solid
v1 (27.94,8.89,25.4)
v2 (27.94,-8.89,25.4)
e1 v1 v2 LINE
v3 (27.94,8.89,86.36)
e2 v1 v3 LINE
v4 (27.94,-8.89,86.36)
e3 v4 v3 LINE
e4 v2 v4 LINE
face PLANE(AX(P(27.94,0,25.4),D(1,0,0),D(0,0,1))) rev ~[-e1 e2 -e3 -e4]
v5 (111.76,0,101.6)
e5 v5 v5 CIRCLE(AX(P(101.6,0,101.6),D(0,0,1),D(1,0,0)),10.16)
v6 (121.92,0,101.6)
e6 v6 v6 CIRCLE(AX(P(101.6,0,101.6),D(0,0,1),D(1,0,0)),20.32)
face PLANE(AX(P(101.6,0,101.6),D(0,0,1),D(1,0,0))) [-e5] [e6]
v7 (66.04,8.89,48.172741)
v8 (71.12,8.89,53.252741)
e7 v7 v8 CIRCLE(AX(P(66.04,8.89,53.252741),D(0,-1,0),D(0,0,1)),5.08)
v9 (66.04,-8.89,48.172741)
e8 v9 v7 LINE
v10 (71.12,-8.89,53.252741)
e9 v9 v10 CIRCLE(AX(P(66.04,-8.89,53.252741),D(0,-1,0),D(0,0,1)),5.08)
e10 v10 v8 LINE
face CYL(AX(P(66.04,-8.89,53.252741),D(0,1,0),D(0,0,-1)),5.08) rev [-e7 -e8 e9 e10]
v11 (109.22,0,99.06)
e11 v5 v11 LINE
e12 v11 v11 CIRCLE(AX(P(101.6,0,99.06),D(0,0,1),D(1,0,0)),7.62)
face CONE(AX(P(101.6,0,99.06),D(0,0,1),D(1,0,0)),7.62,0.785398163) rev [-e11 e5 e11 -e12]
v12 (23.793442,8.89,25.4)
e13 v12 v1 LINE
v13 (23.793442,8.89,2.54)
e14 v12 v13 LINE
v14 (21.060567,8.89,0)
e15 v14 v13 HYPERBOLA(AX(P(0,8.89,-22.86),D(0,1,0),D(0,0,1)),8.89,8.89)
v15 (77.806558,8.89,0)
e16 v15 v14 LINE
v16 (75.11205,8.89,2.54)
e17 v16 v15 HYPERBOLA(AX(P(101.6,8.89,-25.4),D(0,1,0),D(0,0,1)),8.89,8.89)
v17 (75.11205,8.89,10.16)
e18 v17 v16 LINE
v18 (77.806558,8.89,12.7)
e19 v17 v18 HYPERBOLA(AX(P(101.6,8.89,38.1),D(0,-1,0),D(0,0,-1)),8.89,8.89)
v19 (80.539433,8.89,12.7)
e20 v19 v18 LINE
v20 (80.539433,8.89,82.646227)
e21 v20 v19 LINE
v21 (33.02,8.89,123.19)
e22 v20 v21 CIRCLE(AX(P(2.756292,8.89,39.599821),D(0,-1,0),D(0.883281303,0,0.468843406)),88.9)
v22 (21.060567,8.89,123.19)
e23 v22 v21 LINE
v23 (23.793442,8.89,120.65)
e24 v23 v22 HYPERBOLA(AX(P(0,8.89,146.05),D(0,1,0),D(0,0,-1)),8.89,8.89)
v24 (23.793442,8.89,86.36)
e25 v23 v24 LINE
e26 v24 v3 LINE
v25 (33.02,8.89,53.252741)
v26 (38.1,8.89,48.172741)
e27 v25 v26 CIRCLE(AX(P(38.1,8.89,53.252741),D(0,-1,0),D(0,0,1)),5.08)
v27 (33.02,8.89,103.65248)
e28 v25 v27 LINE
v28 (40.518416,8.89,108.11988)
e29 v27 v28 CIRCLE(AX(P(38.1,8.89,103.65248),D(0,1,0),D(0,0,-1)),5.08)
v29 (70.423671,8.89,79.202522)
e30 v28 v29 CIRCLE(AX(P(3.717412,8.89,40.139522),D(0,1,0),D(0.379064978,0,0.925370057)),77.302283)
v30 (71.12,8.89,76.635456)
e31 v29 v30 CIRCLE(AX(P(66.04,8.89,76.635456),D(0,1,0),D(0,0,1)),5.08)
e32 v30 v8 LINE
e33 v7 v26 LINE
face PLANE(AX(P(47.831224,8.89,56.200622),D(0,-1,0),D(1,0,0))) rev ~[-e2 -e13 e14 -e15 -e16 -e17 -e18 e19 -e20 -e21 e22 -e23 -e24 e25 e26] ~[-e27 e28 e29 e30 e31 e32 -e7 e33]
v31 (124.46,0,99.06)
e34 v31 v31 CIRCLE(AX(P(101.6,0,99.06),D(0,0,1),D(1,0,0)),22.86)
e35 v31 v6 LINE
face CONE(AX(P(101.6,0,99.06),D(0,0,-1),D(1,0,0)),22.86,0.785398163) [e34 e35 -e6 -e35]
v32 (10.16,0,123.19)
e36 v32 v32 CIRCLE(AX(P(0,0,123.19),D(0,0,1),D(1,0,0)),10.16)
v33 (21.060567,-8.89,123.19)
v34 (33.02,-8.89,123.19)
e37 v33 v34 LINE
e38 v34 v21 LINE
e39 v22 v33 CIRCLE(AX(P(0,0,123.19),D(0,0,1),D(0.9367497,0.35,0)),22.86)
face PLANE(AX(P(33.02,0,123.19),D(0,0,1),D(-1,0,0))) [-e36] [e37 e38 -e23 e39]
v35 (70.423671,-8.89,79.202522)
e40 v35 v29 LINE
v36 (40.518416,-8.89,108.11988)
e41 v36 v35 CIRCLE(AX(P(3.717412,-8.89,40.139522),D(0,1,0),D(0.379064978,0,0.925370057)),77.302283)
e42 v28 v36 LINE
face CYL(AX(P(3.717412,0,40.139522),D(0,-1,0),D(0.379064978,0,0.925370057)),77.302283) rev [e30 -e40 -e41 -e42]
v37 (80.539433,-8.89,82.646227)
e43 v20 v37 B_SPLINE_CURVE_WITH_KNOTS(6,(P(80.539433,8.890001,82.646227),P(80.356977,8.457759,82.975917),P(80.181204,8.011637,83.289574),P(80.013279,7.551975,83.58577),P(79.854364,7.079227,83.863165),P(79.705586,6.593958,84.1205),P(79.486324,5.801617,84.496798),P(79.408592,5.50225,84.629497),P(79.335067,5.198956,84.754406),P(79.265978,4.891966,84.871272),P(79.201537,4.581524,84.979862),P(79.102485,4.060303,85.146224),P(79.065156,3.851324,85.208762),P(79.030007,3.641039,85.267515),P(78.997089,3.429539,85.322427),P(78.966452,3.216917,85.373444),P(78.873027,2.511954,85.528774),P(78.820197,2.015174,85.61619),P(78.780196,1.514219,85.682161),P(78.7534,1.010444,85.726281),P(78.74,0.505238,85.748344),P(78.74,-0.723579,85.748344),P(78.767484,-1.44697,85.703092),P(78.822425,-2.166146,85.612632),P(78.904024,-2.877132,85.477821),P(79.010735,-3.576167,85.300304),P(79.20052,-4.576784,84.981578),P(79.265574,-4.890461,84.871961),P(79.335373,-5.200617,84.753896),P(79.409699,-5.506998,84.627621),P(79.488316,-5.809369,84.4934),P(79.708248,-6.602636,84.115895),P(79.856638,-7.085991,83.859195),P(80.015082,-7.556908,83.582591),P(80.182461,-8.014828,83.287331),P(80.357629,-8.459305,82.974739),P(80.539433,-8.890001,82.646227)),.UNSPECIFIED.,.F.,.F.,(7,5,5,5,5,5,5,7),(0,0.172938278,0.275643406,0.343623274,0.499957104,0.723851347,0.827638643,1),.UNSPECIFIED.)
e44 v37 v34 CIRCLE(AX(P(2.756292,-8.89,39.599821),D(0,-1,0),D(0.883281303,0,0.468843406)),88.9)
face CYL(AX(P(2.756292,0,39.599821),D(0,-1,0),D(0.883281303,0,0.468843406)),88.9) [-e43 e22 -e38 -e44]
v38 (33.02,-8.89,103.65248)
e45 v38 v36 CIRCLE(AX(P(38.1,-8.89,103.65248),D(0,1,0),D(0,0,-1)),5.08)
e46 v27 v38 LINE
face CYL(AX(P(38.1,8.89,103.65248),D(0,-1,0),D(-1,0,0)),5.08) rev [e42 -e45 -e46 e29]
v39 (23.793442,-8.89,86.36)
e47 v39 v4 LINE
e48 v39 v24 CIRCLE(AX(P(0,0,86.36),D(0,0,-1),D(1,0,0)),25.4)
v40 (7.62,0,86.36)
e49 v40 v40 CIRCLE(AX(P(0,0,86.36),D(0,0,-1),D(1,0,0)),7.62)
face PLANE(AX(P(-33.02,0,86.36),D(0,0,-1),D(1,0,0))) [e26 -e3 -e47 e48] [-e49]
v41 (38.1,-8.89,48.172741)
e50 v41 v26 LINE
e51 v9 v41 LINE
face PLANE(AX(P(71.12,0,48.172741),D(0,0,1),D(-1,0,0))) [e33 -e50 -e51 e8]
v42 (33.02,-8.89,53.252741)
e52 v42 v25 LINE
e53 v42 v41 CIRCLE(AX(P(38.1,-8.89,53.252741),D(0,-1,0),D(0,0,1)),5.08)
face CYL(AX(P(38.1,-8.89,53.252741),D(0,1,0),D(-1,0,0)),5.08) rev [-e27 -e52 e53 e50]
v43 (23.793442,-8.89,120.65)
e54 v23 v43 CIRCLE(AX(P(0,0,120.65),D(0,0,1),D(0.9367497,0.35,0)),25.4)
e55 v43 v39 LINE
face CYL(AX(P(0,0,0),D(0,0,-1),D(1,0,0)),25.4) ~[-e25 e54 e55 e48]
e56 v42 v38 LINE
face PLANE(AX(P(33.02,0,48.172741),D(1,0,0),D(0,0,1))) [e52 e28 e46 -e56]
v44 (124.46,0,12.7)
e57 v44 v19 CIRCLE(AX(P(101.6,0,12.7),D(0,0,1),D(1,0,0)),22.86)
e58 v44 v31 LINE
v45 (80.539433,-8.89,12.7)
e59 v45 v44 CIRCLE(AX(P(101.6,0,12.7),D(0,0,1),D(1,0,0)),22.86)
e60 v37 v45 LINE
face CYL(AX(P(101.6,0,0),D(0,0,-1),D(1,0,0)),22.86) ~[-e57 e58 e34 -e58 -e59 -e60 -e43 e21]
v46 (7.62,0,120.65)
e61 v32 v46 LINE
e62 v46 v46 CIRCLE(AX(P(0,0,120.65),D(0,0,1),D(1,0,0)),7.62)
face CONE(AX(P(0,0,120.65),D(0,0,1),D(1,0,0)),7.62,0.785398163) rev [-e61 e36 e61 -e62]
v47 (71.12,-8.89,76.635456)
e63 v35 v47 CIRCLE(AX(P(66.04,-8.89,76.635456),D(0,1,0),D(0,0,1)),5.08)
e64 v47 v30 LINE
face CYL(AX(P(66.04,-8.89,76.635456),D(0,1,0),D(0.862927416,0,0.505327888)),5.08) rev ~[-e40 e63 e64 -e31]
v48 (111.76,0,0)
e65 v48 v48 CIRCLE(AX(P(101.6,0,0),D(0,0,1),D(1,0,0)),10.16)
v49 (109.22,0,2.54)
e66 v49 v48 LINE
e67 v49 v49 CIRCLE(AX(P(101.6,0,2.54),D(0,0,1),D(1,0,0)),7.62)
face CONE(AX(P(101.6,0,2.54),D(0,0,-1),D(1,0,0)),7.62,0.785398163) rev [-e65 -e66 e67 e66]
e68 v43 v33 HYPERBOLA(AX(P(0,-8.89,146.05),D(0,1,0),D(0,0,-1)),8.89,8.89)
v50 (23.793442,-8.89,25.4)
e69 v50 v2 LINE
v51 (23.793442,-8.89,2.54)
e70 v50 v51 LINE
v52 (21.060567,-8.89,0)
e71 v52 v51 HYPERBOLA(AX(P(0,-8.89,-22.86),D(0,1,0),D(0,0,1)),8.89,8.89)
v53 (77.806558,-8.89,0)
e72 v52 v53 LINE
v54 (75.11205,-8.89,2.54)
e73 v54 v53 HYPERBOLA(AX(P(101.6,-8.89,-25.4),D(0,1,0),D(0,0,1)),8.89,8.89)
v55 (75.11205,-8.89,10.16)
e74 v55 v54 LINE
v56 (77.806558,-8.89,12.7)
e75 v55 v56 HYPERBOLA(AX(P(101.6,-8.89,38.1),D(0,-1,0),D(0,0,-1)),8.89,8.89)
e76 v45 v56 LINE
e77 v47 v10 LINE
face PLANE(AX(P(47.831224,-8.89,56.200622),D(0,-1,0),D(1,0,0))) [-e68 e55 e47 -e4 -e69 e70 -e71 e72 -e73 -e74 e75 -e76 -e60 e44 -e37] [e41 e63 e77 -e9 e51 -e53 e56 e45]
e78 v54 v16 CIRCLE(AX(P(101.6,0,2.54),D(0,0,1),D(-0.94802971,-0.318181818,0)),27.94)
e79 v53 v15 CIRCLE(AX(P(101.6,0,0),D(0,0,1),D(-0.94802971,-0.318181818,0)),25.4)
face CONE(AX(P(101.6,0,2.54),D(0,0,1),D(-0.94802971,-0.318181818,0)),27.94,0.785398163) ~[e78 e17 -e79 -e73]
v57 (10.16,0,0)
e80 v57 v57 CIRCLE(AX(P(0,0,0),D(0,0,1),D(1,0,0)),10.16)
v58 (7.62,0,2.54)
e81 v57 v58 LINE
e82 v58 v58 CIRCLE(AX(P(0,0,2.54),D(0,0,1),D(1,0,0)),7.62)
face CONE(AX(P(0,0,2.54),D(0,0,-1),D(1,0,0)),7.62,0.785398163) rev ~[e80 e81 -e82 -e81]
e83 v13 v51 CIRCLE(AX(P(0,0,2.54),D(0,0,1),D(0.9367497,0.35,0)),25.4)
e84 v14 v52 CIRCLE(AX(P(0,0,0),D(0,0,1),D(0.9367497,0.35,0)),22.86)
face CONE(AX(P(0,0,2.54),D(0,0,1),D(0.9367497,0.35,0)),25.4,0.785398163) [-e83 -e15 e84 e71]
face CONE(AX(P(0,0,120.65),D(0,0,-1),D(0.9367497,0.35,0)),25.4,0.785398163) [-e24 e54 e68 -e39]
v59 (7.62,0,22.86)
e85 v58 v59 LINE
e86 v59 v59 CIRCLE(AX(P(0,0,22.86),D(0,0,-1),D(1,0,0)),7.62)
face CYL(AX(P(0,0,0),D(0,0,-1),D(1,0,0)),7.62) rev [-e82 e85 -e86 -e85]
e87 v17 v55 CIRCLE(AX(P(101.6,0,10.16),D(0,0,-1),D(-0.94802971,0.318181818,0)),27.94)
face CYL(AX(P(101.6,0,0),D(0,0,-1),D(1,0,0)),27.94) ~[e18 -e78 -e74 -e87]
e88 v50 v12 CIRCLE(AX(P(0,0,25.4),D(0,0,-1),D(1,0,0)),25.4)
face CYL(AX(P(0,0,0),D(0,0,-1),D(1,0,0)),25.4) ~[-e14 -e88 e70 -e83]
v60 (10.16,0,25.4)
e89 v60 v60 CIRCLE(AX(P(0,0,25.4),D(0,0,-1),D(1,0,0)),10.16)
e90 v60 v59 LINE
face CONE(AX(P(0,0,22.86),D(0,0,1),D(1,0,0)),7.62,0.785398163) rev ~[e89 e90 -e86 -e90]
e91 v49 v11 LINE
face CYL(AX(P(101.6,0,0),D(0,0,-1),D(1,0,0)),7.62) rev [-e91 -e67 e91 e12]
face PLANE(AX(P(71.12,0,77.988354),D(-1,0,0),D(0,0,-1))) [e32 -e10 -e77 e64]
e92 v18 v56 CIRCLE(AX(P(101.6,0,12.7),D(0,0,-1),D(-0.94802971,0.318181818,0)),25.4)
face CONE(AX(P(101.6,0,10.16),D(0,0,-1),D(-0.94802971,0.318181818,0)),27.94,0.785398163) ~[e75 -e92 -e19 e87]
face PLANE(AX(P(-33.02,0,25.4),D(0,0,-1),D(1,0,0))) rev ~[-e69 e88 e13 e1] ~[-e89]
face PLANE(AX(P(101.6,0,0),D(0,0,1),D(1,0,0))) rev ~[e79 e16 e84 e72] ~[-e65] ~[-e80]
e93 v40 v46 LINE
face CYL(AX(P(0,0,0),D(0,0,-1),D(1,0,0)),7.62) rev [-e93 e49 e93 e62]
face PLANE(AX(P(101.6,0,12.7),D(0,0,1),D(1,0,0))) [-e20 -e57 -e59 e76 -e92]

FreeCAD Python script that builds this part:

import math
import FreeCAD as App
import Part
import Sketcher
Q = App.Units.Quantity


def edges_at(feature, points):
    """Names of the edges that pass closest to the given points."""
    edges = feature.Shape.Edges
    near = lambda p: min(range(len(edges)), key=lambda i: edges[i].distToShape(Part.Vertex(*p))[0])
    return sorted({f"Edge{near(p) + 1}" for p in points})


def add_polygon(sketch, points):
    """Adds a closed chain of lines whose ends are joined by coincident constraints."""
    first, n = sketch.GeometryCount, len(points)
    for a, b in zip(points, points[1:] + points[:1]):
        sketch.addGeometry(Part.LineSegment(App.Vector(*a, 0), App.Vector(*b, 0)), False)
    for i in range(n):
        sketch.addConstraint(Sketcher.Constraint("Coincident", first + i, 2, first + (i + 1) % n, 1))

doc = App.newDocument("Part")
body = doc.addObject("PartDesign::Body", "Body")

sketch1 = doc.addObject("Sketcher::SketchObject", "Sketch")
body.addObject(sketch1)
sketch1.AttachmentSupport = (doc.XY_Plane, [""])
sketch1.MapMode = "FlatFace"
sketch1.addGeometry(Part.Circle(App.Vector(0, 0, 0), App.Vector(0, 0, 1), 25), False)
sketch1.addGeometry(Part.Circle(App.Vector(0, 0, 0), App.Vector(0, 0, 1), 8), False)
sketch1.addConstraint(Sketcher.Constraint("Coincident", 0, 3, -1, 1))
sketch1.addConstraint(Sketcher.Constraint("Coincident", 1, 3, -1, 1))
sketch1.addConstraint(Sketcher.Constraint("Diameter", 0, Q("2 in")))
sketch1.addConstraint(Sketcher.Constraint("Diameter", 1, Q("0.6 in")))
pad1 = doc.addObject("PartDesign::Pad", "Pad")
body.addObject(pad1)
pad1.Profile = sketch1
pad1.Length = Q("4.85 in")
body2 = doc.addObject("PartDesign::Body", "Body001")

sketch2 = doc.addObject("Sketcher::SketchObject", "Sketch001")
body2.addObject(sketch2)
sketch2.AttachmentSupport = (doc.getObject("XY_Plane001"), [""])
sketch2.MapMode = "FlatFace"
sketch2.addGeometry(Part.Circle(App.Vector(102, 0, 0), App.Vector(0, 0, 1), 23), False)
sketch2.addGeometry(Part.Circle(App.Vector(102, 0, 0), App.Vector(0, 0, 1), 8), False)
sketch2.addConstraint(Sketcher.Constraint("Coincident", 1, 3, 0, 3))
sketch2.addConstraint(Sketcher.Constraint("PointOnObject", 0, 3, -1))
sketch2.addConstraint(Sketcher.Constraint("Diameter", 0, Q("1.8 in")))
sketch2.addConstraint(Sketcher.Constraint("Diameter", 1, Q("0.6 in")))
sketch2.addConstraint(Sketcher.Constraint("DistanceX", -1, 1, 0, 3, Q("4 in")))
pad2 = doc.addObject("PartDesign::Pad", "Pad001")
body2.addObject(pad2)
pad2.Profile = sketch2
pad2.Length = Q("4 in")
body.AllowCompound = True
doc.recompute()

boolean = doc.addObject("PartDesign::Boolean", "Boolean")
body.addObject(boolean)
boolean.Type = "Fuse"
boolean.addObjects([body2])

sketch3 = doc.addObject("Sketcher::SketchObject", "Sketch002")
body.addObject(sketch3)
sketch3.AttachmentSupport = (doc.XZ_Plane, [""])
sketch3.MapMode = "FlatFace"
sketch3.addGeometry(Part.LineSegment(App.Vector(20, 123, 0), App.Vector(20, 0, 0)), False)
sketch3.addGeometry(Part.LineSegment(App.Vector(20, 0, 0), App.Vector(81, 0, 0)), False)
sketch3.addGeometry(Part.LineSegment(App.Vector(81, 0, 0), App.Vector(81, 81, 0)), False)
sketch3.addGeometry(Part.ArcOfCircle(Part.Circle(App.Vector(3, 40, 0), App.Vector(0, 0, 1), 89), math.radians(28), math.radians(70)), False)
sketch3.addGeometry(Part.LineSegment(App.Vector(33, 123, 0), App.Vector(20, 123, 0)), False)
sketch3.addGeometry(Part.LineSegment(App.Vector(33, 48, 0), App.Vector(33, 112, 0)), False)
sketch3.addGeometry(Part.ArcOfCircle(Part.Circle(App.Vector(4, 40, 0), App.Vector(0, 0, 1), 77), math.radians(29), math.radians(68)), False)
sketch3.addGeometry(Part.LineSegment(App.Vector(71, 78, 0), App.Vector(71, 48, 0)), False)
sketch3.addGeometry(Part.LineSegment(App.Vector(71, 48, 0), App.Vector(33, 48, 0)), False)
sketch3.addConstraint(Sketcher.Constraint("Coincident", 0, 2, 1, 1))
sketch3.addConstraint(Sketcher.Constraint("Coincident", 1, 2, 2, 1))
sketch3.addConstraint(Sketcher.Constraint("Coincident", 2, 2, 3, 1))
sketch3.addConstraint(Sketcher.Constraint("Coincident", 3, 2, 4, 1))
sketch3.addConstraint(Sketcher.Constraint("Coincident", 4, 2, 0, 1))
sketch3.addConstraint(Sketcher.Constraint("Coincident", 5, 2, 6, 2))
sketch3.addConstraint(Sketcher.Constraint("Coincident", 6, 1, 7, 1))
sketch3.addConstraint(Sketcher.Constraint("Coincident", 7, 2, 8, 1))
sketch3.addConstraint(Sketcher.Constraint("Coincident", 8, 2, 5, 1))
sketch3.addConstraint(Sketcher.Constraint("Vertical", 0))
sketch3.addConstraint(Sketcher.Constraint("Horizontal", 1))
sketch3.addConstraint(Sketcher.Constraint("Vertical", 2))
sketch3.addConstraint(Sketcher.Constraint("Horizontal", 4))
sketch3.addConstraint(Sketcher.Constraint("Vertical", 5))
sketch3.addConstraint(Sketcher.Constraint("Vertical", 7))
sketch3.addConstraint(Sketcher.Constraint("Horizontal", 8))
sketch3.addConstraint(Sketcher.Constraint("PointOnObject", 0, 2, -1))
sketch3.addConstraint(Sketcher.Constraint("Vertical", 3, 2, 5, 2))
sketch3.addConstraint(Sketcher.Constraint("Radius", 3, Q("3.5 in")))
sketch3.addConstraint(Sketcher.Constraint("DistanceX", 1, 1, 1, 2, Q("2.4 in")))
sketch3.addConstraint(Sketcher.Constraint("DistanceX", 4, 2, 4, 1, Q("0.5 in")))
sketch3.addConstraint(Sketcher.Constraint("DistanceX", 8, 2, 8, 1, Q("1.5 in")))
sketch3.addConstraint(Sketcher.Constraint("DistanceY", 2, 1, 2, 2, Q("3.2 in")))
sketch3.addConstraint(Sketcher.Constraint("DistanceY", 5, 1, 5, 2, Q("2.5 in")))
sketch3.addConstraint(Sketcher.Constraint("DistanceY", 0, 2, 0, 1, Q("4.85 in")))
sketch3.addConstraint(Sketcher.Constraint("DistanceX", -1, 1, 0, 2, Q("0.8 in")))
sketch3.addConstraint(Sketcher.Constraint("Radius", 6, 77.302283))
sketch3.addConstraint(Sketcher.Constraint("DistanceY", 3, 3, 6, 3, 0.539701))
sketch3.addConstraint(Sketcher.Constraint("DistanceY", 7, 2, 7, 1, 29.815614))
pad3 = doc.addObject("PartDesign::Pad", "Pad002")
body.addObject(pad3)
pad3.Profile = sketch3
pad3.Length = Q("0.7 in")
pad3.Midplane = True

sketch4 = doc.addObject("Sketcher::SketchObject", "Sketch003")
body.addObject(sketch4)
sketch4.AttachmentSupport = (doc.XZ_Plane, [""])
sketch4.MapMode = "FlatFace"
add_polygon(sketch4, [(-33, 86), (-33, 25), (28, 25), (28, 86)])
sketch4.addConstraint(Sketcher.Constraint("Vertical", 0))
sketch4.addConstraint(Sketcher.Constraint("Horizontal", 1))
sketch4.addConstraint(Sketcher.Constraint("Vertical", 2))
sketch4.addConstraint(Sketcher.Constraint("Horizontal", 3))
sketch4.addConstraint(Sketcher.Constraint("Equal", 3, 0))
sketch4.addConstraint(Sketcher.Constraint("DistanceX", 1, 1, 1, 2, Q("2.4 in")))
sketch4.addConstraint(Sketcher.Constraint("DistanceY", -1, 1, 0, 2, Q("1 in")))
sketch4.addConstraint(Sketcher.Constraint("DistanceX", 0, 2, -1, 1, Q("1.3 in")))
pocket1 = doc.addObject("PartDesign::Pocket", "Pocket")
body.addObject(pocket1)
pocket1.Profile = sketch4
pocket1.Length = Q("4 in")
pocket1.Midplane = True
doc.recompute()

fillet = doc.addObject("PartDesign::Fillet", "Fillet")
body.addObject(fillet)
fillet.Base = (pocket1, edges_at(pocket1, [
    (33.02, 0, 111.673),
    (71.12, 0, 77.988),
    (33.02, 0, 48.173),
    (71.12, 0, 48.173),
]))
fillet.Radius = Q("0.2 in")
doc.recompute()

chamfer = doc.addObject("PartDesign::Chamfer", "Chamfer")
body.addObject(chamfer)
chamfer.Base = (fillet, edges_at(fillet, [
    (-7.62, 0, 123.19),
    (-25.4, 0, 123.19),
    (-7.62, 0, 25.4),
    (-7.62, 0, 0),
    (-25.4, 0, 0),
]))
chamfer.Size = Q("0.1 in")

sketch5 = doc.addObject("Sketcher::SketchObject", "Sketch004")
body.addObject(sketch5)
sketch5.AttachmentSupport = (doc.XY_Plane, [""])
sketch5.MapMode = "FlatFace"
sketch5.addGeometry(Part.Circle(App.Vector(102, 0, 0), App.Vector(0, 0, 1), 28), False)
sketch5.addGeometry(Part.Circle(App.Vector(102, 0, 0), App.Vector(0, 0, 1), 23), False)
sketch5.addConstraint(Sketcher.Constraint("Coincident", 1, 3, 0, 3))
sketch5.addConstraint(Sketcher.Constraint("PointOnObject", 0, 3, -1))
sketch5.addConstraint(Sketcher.Constraint("Diameter", 0, Q("2.2 in")))
sketch5.addConstraint(Sketcher.Constraint("Diameter", 1, Q("1.8 in")))
sketch5.addConstraint(Sketcher.Constraint("DistanceX", -1, 1, 0, 3, Q("4 in")))
pad4 = doc.addObject("PartDesign::Pad", "Pad003")
body.addObject(pad4)
pad4.Profile = sketch5
pad4.Length = Q("0.5 in")
doc.recompute()

chamfer2 = doc.addObject("PartDesign::Chamfer", "Chamfer001")
body.addObject(chamfer2)
chamfer2.Base = (pad4, edges_at(pad4, [
    (93.98, 0, 0),
    (129.54, 0, 0),
    (93.98, 0, 101.6),
    (129.54, 0, 12.7),
    (78.74, 0, 101.6),
]))
chamfer2.Size = Q("0.1 in")

doc.recompute()
